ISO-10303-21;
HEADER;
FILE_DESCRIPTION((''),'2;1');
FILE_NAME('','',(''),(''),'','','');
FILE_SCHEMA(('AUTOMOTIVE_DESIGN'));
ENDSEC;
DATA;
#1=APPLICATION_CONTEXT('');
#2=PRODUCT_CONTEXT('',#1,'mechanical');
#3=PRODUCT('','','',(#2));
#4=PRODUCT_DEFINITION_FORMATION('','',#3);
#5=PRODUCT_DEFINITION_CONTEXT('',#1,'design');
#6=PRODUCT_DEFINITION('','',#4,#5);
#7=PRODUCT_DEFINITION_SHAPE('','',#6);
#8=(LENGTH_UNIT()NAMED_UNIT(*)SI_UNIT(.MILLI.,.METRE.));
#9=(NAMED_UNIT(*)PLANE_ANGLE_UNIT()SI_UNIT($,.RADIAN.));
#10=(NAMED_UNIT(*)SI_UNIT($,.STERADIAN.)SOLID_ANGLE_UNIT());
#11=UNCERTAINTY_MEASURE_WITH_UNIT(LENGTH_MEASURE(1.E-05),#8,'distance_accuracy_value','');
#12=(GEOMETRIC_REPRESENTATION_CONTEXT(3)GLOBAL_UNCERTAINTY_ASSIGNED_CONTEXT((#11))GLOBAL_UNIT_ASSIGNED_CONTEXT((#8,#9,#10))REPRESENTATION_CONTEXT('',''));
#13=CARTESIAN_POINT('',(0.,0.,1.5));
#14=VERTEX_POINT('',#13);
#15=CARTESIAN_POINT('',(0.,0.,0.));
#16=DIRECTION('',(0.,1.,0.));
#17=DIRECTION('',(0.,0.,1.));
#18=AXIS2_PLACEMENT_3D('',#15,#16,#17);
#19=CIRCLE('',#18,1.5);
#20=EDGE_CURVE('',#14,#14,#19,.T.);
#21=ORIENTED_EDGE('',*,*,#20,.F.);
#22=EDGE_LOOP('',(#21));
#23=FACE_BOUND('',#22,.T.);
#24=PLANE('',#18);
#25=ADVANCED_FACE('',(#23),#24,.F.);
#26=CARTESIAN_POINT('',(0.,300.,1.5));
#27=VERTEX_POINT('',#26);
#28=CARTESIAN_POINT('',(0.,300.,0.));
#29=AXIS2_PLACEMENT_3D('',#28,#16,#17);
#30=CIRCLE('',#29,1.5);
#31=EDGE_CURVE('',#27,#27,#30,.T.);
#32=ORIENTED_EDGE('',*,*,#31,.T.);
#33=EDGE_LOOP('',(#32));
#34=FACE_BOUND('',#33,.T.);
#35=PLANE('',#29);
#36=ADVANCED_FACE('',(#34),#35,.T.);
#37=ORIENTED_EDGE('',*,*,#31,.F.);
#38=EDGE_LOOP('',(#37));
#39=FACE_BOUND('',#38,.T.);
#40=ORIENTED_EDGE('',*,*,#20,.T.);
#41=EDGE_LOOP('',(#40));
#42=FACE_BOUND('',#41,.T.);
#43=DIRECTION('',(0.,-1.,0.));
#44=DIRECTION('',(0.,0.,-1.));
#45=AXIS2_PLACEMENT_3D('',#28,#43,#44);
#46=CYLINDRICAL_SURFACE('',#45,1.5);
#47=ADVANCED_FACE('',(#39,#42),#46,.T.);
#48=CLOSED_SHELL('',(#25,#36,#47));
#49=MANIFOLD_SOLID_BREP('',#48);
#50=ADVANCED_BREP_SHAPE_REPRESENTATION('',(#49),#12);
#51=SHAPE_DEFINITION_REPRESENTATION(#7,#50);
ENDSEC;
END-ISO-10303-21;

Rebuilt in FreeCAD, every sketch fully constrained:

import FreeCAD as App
import Part
import Sketcher
from FreeCAD import Vector

doc = App.newDocument("Part")
body = doc.addObject("PartDesign::Body", "Body")

# Sketch on XZ plane
sketch1 = body.newObject("Sketcher::SketchObject", "Sketch")
sketch1.AttachmentSupport = (doc.getObject("XZ_Plane"), [""])
sketch1.MapMode = "FlatFace"
sketch1.addGeometry(Part.Circle(Vector(0, 0, 0), Vector(0, 0, 1), 1.5), False)
sketch1.addConstraint(Sketcher.Constraint("Coincident", 0, 3, -1, 1))
sketch1.addConstraint(Sketcher.Constraint("Diameter", 0, 3.0))
pad1 = body.newObject("PartDesign::Pad", "Pad")
pad1.Profile = sketch1
pad1.Length = 300
pad1.Reversed = True

doc.recompute()
